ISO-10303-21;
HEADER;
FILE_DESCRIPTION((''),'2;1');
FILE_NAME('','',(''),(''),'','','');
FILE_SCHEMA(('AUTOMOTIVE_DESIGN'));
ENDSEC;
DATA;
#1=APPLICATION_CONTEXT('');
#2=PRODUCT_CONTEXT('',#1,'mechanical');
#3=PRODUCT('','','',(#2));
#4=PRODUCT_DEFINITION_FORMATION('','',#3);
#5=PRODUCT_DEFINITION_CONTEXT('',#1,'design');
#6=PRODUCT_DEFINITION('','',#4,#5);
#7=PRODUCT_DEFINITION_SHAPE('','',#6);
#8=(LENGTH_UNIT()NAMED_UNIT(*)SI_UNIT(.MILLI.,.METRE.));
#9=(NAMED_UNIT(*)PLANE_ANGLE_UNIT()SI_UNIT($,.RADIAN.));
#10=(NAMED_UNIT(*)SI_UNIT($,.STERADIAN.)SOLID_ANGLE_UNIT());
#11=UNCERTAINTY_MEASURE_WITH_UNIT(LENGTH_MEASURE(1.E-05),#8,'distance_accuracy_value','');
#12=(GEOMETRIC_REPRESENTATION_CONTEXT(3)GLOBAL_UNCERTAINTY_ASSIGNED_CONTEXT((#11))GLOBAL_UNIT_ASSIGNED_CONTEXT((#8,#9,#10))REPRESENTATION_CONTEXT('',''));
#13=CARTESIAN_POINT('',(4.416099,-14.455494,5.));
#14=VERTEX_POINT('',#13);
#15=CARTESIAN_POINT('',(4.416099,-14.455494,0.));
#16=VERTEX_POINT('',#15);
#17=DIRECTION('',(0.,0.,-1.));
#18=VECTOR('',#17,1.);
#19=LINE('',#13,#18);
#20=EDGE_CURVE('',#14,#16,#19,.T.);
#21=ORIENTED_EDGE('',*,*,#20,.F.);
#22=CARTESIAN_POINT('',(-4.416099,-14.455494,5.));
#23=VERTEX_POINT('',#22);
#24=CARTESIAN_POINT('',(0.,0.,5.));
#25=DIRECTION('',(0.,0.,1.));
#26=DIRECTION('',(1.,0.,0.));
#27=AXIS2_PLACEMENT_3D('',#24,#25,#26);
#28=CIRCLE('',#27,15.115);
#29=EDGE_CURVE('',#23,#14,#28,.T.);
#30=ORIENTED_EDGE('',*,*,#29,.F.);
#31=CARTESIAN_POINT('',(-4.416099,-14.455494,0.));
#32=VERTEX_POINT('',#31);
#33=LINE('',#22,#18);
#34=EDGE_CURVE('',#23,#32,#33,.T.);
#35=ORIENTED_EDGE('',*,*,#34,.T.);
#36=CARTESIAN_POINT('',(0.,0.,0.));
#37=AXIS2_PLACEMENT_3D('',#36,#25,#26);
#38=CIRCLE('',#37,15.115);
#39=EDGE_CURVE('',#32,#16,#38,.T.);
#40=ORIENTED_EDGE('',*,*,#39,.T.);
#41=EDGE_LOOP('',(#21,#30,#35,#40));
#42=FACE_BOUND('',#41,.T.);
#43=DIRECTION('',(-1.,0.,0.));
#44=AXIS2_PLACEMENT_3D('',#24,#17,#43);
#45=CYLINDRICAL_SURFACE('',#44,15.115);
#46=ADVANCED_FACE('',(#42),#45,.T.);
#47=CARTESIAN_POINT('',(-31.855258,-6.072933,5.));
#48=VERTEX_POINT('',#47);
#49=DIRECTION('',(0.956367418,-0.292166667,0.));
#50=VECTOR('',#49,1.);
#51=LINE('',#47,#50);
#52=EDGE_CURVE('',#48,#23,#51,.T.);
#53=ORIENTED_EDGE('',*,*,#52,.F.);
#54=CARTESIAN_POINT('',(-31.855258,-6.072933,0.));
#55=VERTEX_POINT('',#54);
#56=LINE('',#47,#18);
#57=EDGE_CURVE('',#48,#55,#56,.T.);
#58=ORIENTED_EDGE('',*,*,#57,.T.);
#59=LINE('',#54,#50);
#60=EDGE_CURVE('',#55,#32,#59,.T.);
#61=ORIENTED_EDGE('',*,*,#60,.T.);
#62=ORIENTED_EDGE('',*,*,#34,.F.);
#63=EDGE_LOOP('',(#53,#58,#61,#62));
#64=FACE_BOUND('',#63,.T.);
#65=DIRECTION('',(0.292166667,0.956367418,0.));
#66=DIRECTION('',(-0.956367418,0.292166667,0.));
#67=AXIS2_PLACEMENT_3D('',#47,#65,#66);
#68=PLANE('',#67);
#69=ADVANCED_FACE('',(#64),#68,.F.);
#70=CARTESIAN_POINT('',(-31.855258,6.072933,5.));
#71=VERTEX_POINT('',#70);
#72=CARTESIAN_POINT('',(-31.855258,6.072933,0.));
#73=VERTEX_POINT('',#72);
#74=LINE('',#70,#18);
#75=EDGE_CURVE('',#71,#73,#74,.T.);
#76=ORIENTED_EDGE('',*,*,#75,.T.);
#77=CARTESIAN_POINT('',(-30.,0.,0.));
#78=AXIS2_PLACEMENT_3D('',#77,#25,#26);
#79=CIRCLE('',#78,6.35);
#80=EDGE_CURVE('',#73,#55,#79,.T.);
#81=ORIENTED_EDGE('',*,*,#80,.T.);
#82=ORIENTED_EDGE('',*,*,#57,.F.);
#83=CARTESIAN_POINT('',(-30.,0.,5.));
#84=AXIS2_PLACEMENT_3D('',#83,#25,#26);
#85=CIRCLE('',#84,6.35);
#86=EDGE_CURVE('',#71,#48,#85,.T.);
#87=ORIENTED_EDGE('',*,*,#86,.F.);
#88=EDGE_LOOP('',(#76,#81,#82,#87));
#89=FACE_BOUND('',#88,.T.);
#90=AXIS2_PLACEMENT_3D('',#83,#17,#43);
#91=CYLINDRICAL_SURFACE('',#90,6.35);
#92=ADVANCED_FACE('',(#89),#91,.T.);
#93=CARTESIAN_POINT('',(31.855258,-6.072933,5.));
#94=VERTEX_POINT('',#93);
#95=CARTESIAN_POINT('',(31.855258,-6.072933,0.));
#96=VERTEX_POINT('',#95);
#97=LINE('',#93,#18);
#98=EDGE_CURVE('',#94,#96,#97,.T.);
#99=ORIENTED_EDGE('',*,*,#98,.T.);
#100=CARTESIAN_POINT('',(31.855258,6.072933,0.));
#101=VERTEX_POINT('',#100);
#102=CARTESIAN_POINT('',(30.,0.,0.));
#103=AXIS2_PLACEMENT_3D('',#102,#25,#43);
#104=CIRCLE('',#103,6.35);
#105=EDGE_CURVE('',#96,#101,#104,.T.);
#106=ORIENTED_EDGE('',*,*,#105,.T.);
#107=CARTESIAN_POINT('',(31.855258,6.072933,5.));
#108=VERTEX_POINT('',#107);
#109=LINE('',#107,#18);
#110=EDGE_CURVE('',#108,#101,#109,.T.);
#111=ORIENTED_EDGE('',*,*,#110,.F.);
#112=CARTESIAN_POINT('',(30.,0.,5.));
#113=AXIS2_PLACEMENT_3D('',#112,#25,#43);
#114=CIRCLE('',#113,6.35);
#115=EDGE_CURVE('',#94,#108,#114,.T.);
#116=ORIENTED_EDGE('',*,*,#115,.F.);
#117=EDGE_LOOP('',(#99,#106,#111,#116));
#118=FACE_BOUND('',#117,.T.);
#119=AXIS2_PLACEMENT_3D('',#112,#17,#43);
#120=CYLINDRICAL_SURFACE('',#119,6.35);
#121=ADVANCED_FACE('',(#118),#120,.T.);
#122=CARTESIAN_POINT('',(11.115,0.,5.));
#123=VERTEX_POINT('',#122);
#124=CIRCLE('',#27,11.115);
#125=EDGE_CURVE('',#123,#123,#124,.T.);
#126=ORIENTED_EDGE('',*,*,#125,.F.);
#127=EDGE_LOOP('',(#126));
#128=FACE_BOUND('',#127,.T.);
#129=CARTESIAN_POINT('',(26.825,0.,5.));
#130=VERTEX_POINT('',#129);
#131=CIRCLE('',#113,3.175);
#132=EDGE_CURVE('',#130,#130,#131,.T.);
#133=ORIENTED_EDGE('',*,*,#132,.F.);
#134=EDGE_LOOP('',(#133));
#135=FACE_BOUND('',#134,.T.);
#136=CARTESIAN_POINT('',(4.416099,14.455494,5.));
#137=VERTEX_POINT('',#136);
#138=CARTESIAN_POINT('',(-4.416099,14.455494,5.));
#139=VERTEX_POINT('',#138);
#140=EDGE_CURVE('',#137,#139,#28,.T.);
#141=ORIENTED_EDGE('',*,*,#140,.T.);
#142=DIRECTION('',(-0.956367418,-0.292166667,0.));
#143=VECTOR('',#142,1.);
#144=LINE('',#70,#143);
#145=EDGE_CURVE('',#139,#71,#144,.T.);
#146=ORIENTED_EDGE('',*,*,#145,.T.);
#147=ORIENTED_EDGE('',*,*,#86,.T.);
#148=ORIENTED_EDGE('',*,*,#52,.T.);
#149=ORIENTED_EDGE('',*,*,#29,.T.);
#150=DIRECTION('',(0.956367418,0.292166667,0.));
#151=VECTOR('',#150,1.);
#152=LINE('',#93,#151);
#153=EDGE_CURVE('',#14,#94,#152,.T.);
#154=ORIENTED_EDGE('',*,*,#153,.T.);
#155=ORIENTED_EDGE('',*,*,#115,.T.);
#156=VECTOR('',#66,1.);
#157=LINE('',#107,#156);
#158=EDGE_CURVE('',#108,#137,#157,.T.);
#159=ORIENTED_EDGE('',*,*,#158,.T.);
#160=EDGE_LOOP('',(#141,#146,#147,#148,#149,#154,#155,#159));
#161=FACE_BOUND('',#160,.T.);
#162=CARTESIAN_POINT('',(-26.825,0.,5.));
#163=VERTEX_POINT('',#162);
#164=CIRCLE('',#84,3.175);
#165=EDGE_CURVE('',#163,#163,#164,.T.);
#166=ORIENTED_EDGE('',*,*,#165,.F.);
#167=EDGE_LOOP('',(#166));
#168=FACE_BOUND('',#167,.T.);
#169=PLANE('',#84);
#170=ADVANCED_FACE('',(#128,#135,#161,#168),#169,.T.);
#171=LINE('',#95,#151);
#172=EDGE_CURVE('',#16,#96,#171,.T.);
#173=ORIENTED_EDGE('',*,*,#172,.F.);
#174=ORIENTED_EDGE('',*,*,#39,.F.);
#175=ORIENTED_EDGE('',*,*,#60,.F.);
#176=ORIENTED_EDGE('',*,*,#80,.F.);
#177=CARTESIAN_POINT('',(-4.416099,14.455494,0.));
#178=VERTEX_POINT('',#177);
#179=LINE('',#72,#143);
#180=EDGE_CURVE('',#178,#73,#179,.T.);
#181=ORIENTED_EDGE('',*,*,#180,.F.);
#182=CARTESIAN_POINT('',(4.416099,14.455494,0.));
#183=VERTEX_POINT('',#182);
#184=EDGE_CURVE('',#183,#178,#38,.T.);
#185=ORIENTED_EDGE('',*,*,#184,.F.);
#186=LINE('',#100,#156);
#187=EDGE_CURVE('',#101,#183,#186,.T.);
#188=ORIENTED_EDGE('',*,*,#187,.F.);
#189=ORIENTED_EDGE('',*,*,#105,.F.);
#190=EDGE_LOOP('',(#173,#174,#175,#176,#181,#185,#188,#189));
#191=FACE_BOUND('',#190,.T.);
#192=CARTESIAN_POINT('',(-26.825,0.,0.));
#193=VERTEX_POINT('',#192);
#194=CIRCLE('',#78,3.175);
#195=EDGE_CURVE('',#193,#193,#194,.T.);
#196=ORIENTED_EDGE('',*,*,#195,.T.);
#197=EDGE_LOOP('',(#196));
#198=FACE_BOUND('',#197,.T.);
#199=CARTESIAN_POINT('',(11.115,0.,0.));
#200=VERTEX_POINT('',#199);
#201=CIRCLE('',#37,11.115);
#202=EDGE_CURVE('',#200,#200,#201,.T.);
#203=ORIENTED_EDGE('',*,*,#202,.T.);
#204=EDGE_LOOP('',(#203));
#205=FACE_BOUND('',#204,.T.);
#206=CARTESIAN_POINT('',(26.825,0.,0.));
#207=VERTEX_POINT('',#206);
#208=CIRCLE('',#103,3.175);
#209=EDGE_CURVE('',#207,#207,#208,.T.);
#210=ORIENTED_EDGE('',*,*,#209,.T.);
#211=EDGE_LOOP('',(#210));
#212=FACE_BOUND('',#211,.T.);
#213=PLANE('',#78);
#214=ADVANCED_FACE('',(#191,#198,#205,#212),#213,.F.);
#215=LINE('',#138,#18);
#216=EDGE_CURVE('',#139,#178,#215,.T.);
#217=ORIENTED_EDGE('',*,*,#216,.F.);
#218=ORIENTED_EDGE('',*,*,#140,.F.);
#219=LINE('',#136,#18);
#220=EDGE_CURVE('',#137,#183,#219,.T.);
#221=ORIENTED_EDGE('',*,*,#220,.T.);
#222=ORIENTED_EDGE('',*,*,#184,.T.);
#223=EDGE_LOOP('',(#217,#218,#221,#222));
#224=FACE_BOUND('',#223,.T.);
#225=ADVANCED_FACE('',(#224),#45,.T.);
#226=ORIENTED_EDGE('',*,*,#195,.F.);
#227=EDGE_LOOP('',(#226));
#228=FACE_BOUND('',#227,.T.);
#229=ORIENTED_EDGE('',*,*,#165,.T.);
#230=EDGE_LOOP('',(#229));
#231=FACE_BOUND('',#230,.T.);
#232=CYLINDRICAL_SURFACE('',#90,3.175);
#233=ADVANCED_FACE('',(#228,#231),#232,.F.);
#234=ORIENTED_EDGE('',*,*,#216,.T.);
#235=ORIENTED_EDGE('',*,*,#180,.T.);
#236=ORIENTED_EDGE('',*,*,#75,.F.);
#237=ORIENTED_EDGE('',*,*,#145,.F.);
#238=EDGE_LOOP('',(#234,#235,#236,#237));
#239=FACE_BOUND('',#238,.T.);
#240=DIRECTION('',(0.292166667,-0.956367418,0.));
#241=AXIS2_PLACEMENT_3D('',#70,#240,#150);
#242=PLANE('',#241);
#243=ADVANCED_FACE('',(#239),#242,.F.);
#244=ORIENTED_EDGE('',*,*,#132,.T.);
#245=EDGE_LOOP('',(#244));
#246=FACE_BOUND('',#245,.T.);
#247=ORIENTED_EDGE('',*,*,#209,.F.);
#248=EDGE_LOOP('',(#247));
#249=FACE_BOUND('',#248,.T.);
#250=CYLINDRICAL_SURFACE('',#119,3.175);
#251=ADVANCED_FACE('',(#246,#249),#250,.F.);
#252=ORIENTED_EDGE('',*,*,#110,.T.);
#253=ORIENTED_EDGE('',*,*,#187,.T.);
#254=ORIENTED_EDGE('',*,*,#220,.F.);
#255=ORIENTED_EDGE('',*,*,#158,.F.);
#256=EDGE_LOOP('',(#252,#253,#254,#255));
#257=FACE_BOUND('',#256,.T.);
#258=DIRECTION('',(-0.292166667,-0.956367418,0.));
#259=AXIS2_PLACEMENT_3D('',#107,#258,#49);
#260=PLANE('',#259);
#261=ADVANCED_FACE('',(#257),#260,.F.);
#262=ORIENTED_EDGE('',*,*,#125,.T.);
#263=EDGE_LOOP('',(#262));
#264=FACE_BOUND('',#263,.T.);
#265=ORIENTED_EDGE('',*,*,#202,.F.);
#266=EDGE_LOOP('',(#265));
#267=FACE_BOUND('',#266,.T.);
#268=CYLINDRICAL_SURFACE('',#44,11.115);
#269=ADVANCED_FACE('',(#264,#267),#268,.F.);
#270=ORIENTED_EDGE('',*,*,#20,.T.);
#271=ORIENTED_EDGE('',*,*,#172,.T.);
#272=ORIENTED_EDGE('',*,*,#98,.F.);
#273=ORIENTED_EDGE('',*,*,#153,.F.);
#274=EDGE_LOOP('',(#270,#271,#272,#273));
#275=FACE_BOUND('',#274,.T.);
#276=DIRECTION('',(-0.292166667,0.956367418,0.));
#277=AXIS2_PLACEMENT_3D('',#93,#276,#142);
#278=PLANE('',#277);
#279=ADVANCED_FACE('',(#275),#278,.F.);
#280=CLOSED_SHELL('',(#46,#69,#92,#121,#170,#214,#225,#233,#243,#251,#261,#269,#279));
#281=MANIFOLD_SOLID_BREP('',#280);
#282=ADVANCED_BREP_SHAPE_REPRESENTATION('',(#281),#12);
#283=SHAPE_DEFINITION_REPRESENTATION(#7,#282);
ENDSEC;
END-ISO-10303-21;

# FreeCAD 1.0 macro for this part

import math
import FreeCAD as App
import Part
import Sketcher

V = App.Vector
Q = App.Units.Quantity

doc = App.newDocument("Part")
body = doc.addObject("PartDesign::Body", "Body")

# Sketch on XY plane
sketch1 = body.newObject("Sketcher::SketchObject", "Sketch")
sketch1.AttachmentSupport = (doc.getObject("XY_Plane"), [""])
sketch1.MapMode = "FlatFace"
sketch1.addGeometry([
    Part.LineSegment(V(-4.416099, 14.455494, 0), V(-31.855258, 6.072933, 0)),  # 0
    Part.ArcOfCircle(Part.Circle(V(-30, 0, 0), V(0, 0, 1), 6.35), math.radians(106.987716), math.radians(253.012284)),  # 1
    Part.LineSegment(V(-31.855258, -6.072933, 0), V(-4.416099, -14.455494, 0)),  # 2
    Part.ArcOfCircle(Part.Circle(V(0, 0, 0), V(0, 0, 1), 15.115), math.radians(-106.987716), math.radians(-73.012284)),  # 3
    Part.LineSegment(V(4.416099, -14.455494, 0), V(31.855258, -6.072933, 0)),  # 4
    Part.ArcOfCircle(Part.Circle(V(30, 0, 0), V(0, 0, 1), 6.35), math.radians(-73.012284), math.radians(73.012284)),  # 5
    Part.LineSegment(V(31.855258, 6.072933, 0), V(4.416099, 14.455494, 0)),  # 6
    Part.ArcOfCircle(Part.Circle(V(0, 0, 0), V(0, 0, 1), 15.115), math.radians(73.012284), math.radians(106.987716)),  # 7
    Part.Circle(V(30, 0, 0), V(0, 0, 1), 3.175),  # 8
    Part.Circle(V(0, 0, 0), V(0, 0, 1), 11.115),  # 9
    Part.Circle(V(-30, 0, 0), V(0, 0, 1), 3.175),  # 10
], False)
sketch1.addConstraint([
    Sketcher.Constraint("Tangent", 0, 2, 1, 1),
    Sketcher.Constraint("Tangent", 1, 2, 2, 1),
    Sketcher.Constraint("Tangent", 2, 2, 3, 1),
    Sketcher.Constraint("Tangent", 3, 2, 4, 1),
    Sketcher.Constraint("Tangent", 4, 2, 5, 1),
    Sketcher.Constraint("Tangent", 5, 2, 6, 1),
    Sketcher.Constraint("Tangent", 6, 2, 7, 1),
    Sketcher.Constraint("Tangent", 7, 2, 0, 1),
    Sketcher.Constraint("Coincident", 3, 3, -1, 1),
    Sketcher.Constraint("Coincident", 7, 3, -1, 1),
    Sketcher.Constraint("Coincident", 9, 3, -1, 1),
    Sketcher.Constraint("Coincident", 8, 3, 5, 3),
    Sketcher.Constraint("Coincident", 10, 3, 1, 3),
    Sketcher.Constraint("Equal", 1, 5),
    Sketcher.Constraint("Equal", 3, 7),
    Sketcher.Constraint("Equal", 8, 10),
    Sketcher.Constraint("Symmetric", 1, 3, 5, 3, -1, 1),
    Sketcher.Constraint("PointOnObject", 1, 3, -1),
    Sketcher.Constraint("Diameter", 8, Q("0.25 in")),
    Sketcher.Constraint("Radius", 1, Q("0.25 in")),
    Sketcher.Constraint("Diameter", 9, Q("22.23 mm")),
    Sketcher.Constraint("Radius", 3, Q("15.115 mm")),
    Sketcher.Constraint("DistanceX", 1, 3, -1, 1, Q("30 mm")),
])
pad1 = body.newObject("PartDesign::Pad", "Pad")
pad1.Profile = sketch1
pad1.Length = 5

doc.recompute()
